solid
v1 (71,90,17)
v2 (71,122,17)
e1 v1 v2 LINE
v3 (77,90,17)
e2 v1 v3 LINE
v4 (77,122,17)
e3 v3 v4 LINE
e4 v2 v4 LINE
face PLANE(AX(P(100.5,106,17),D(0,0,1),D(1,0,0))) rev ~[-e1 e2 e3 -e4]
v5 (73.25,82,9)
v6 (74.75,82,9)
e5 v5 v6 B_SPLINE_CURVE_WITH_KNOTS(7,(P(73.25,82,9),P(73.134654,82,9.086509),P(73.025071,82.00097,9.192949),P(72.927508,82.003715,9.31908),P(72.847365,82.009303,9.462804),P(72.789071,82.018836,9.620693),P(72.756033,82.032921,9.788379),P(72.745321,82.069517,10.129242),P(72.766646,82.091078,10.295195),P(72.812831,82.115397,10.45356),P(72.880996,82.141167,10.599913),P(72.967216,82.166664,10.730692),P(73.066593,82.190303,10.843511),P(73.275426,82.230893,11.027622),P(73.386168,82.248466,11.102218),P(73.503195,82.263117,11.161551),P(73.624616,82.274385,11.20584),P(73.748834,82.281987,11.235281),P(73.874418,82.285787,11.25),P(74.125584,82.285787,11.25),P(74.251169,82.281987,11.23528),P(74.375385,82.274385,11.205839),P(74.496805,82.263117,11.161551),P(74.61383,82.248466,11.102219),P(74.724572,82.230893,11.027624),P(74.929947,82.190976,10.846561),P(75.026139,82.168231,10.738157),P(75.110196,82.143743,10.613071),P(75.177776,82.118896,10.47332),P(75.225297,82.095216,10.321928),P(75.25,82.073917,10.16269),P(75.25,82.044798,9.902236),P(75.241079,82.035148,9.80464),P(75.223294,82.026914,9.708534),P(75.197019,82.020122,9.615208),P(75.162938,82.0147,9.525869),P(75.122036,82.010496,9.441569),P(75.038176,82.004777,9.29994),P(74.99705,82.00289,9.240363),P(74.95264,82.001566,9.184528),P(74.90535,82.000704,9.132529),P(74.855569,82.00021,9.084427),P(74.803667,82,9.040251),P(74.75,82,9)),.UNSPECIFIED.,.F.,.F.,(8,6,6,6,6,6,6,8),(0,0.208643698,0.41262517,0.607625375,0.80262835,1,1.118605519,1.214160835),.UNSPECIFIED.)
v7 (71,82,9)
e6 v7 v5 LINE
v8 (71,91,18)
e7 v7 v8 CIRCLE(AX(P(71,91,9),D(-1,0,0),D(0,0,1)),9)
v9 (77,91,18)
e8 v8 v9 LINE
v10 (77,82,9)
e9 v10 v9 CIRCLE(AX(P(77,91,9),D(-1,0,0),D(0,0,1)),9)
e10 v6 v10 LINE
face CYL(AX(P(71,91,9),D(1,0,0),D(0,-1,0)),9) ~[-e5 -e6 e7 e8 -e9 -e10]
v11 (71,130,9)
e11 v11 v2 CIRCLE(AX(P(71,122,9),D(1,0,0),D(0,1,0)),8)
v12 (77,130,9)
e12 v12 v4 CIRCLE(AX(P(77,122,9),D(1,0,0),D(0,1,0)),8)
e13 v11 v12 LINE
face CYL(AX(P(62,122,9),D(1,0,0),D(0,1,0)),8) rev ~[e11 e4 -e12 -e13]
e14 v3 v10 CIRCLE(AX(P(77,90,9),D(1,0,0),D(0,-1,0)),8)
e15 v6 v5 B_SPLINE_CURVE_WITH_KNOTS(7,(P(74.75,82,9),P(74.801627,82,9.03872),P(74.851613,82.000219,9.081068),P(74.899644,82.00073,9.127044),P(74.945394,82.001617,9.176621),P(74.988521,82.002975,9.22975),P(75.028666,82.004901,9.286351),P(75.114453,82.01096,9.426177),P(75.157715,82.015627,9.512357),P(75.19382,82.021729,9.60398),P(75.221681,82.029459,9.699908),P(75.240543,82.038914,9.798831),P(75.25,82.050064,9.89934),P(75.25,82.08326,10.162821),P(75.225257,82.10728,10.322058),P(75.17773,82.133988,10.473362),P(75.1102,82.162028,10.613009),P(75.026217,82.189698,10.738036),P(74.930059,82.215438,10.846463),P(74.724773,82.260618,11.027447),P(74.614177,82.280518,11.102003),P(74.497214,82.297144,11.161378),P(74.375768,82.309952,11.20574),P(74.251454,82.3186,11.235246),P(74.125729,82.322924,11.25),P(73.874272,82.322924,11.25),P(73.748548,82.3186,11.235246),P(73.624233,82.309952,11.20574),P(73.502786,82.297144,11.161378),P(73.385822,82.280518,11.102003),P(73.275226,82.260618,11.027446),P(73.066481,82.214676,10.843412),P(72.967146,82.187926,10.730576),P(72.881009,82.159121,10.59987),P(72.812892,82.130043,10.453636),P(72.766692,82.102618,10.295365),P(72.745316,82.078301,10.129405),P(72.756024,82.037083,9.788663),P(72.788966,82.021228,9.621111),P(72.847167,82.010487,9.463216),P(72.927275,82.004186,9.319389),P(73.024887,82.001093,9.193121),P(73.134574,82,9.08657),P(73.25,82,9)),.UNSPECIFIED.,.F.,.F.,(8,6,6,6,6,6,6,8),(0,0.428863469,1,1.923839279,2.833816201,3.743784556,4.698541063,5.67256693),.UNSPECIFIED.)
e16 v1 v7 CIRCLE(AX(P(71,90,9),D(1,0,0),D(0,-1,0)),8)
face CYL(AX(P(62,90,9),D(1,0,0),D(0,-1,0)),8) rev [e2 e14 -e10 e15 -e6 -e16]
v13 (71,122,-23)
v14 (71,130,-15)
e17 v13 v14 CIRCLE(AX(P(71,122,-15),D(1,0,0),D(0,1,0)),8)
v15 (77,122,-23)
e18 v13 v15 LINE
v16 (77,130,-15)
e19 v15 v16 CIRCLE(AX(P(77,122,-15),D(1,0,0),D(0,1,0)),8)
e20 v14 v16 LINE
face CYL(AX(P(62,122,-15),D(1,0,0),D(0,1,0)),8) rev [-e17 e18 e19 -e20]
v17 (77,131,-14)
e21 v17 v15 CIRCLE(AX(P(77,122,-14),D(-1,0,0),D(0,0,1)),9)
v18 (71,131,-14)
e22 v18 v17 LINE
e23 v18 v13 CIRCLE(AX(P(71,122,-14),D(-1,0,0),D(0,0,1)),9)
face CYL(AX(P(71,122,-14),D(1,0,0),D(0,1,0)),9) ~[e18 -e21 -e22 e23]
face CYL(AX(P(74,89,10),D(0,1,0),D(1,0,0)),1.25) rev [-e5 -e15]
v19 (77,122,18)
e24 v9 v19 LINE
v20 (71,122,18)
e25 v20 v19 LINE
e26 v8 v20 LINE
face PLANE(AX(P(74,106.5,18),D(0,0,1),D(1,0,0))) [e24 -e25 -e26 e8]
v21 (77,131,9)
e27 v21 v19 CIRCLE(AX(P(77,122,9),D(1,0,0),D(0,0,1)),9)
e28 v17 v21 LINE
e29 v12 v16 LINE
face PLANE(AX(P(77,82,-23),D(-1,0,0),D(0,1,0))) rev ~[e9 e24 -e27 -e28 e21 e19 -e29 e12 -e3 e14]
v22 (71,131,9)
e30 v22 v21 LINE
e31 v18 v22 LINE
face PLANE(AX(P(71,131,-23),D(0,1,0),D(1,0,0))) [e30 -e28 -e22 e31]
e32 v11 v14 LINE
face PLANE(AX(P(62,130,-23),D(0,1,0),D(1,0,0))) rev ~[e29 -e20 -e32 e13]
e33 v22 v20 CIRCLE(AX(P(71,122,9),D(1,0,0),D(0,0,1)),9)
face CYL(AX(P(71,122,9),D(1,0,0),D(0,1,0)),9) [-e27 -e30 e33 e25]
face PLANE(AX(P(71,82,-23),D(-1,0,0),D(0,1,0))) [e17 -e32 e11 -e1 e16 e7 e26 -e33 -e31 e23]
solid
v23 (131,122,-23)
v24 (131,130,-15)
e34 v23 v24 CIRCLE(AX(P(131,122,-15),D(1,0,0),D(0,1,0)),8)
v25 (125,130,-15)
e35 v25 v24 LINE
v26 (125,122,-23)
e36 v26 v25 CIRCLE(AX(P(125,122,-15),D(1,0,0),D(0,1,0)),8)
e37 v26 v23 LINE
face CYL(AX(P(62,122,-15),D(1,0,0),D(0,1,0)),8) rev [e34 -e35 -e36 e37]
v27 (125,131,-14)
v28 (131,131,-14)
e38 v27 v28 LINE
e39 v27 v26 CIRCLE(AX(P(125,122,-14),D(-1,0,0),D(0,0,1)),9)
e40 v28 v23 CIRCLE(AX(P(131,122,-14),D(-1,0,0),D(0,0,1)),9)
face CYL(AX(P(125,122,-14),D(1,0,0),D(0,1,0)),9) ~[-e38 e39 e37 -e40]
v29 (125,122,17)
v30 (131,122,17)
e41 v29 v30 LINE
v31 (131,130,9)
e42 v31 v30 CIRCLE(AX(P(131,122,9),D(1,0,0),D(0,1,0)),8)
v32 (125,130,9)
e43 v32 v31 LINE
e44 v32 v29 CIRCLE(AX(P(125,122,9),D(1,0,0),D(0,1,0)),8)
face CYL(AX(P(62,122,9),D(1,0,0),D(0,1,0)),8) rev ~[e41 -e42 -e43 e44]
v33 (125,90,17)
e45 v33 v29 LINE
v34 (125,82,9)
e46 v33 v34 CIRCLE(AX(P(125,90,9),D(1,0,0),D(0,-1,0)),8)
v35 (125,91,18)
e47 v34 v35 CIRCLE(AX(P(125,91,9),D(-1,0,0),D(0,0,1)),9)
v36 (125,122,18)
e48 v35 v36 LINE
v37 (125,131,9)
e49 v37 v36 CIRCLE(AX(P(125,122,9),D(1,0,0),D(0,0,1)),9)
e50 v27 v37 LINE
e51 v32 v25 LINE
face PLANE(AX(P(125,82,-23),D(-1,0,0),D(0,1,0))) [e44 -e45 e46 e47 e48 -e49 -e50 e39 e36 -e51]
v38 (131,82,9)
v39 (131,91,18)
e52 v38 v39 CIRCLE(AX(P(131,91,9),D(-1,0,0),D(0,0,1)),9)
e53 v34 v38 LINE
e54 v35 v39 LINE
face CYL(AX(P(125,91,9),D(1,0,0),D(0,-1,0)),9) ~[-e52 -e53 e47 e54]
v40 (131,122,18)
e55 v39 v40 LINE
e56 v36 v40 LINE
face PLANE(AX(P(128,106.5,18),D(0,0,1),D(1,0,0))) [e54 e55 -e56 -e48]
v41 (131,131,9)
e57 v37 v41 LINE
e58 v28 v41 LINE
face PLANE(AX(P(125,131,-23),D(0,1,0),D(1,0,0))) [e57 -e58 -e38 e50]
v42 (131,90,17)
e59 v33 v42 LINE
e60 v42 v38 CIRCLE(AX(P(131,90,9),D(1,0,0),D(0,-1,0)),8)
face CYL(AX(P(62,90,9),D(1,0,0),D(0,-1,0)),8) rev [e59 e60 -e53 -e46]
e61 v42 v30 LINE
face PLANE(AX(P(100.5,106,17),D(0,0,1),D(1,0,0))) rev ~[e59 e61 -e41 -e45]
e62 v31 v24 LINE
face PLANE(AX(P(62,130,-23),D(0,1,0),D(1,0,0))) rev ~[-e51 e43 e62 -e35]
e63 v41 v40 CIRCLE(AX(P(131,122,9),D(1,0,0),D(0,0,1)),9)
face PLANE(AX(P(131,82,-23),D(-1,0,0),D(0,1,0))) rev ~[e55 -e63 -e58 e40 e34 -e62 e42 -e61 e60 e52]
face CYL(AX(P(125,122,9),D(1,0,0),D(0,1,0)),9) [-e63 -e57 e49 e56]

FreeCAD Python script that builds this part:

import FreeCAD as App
import Part
import Sketcher


def edges_at(feature, points):
    """Names of the edges that pass closest to the given points."""
    edges = feature.Shape.Edges
    near = lambda p: min(range(len(edges)), key=lambda i: edges[i].distToShape(Part.Vertex(*p))[0])
    return sorted({f"Edge{near(p) + 1}" for p in points})

doc = App.newDocument("Part")
body = doc.addObject("PartDesign::Body", "Body")

sketch1 = doc.addObject("Sketcher::SketchObject", "Sketch")
body.addObject(sketch1)
sketch1.AttachmentSupport = (doc.XY_Plane, [""])
sketch1.MapMode = "FlatFace"
sketch1.addGeometry(Part.Circle(App.Vector(0, 0, 0), App.Vector(0, 0, 1), 1.2), False)
sketch1.addConstraint(Sketcher.Constraint("Coincident", 0, 3, -1, 1))
sketch1.addConstraint(Sketcher.Constraint("Diameter", 0, 2.5))
pad1 = doc.addObject("PartDesign::Pad", "Pad")
body.addObject(pad1)
pad1.Profile = sketch1
pad1.Length = 15
body2 = doc.addObject("PartDesign::Body", "Body001")
doc.recompute()

body.Placement = App.Placement(App.Vector(0, 0, 0), App.Rotation(App.Vector(1, 0, 0), 90))
boolean = doc.addObject("PartDesign::Boolean", "Boolean")
body2.addObject(boolean)
boolean.Type = "Fuse"
boolean.addObjects([body])
body3 = doc.addObject("PartDesign::Body", "Body002")
doc.recompute()

body2.Placement = App.Placement(App.Vector(74, 97, 10), App.Rotation(App.Vector(0, 0, 1), 0))
boolean2 = doc.addObject("PartDesign::Boolean", "Boolean001")
body3.addObject(boolean2)
boolean2.Type = "Fuse"
boolean2.addObjects([body2])
body4 = doc.addObject("PartDesign::Body", "Body003")

sketch2 = doc.addObject("Sketcher::SketchObject", "Sketch001")
body4.addObject(sketch2)
sketch2.AttachmentSupport = (doc.getObject("XY_Plane003"), [""])
sketch2.MapMode = "FlatFace"
sketch2.addGeometry(Part.Circle(App.Vector(0, 0, 0), App.Vector(0, 0, 1), 1.2), False)
sketch2.addConstraint(Sketcher.Constraint("Coincident", 0, 3, -1, 1))
sketch2.addConstraint(Sketcher.Constraint("Diameter", 0, 2.5))
pad2 = doc.addObject("PartDesign::Pad", "Pad001")
body4.addObject(pad2)
pad2.Profile = sketch2
pad2.Length = 15
body5 = doc.addObject("PartDesign::Body", "Body004")
doc.recompute()

body4.Placement = App.Placement(App.Vector(0, 0, 0), App.Rotation(App.Vector(1, 0, 0), 90))
boolean3 = doc.addObject("PartDesign::Boolean", "Boolean002")
body5.addObject(boolean3)
boolean3.Type = "Fuse"
boolean3.addObjects([body4])
body6 = doc.addObject("PartDesign::Body", "Body005")
body6.AllowCompound = True
doc.recompute()

body5.Placement = App.Placement(App.Vector(106, 97, 10), App.Rotation(App.Vector(0, 0, 1), 0))
boolean4 = doc.addObject("PartDesign::Boolean", "Boolean003")
body6.addObject(boolean4)
boolean4.Type = "Fuse"
boolean4.addObjects([body5])
doc.recompute()

boolean5 = doc.addObject("PartDesign::Boolean", "Boolean004")
body6.addObject(boolean5)
boolean5.Type = "Fuse"
boolean5.addObjects([body3])
body7 = doc.addObject("PartDesign::Body", "Body006")
body7.AllowCompound = True
doc.recompute()

body6.Placement = App.Placement(App.Vector(0, -8, 0), App.Rotation(App.Vector(0, 0, 1), 0))
boolean6 = doc.addObject("PartDesign::Boolean", "Boolean005")
body7.addObject(boolean6)
boolean6.Type = "Fuse"
boolean6.addObjects([body6])
body8 = doc.addObject("PartDesign::Body", "Body007")

sketch3 = doc.addObject("Sketcher::SketchObject", "Sketch002")
body8.addObject(sketch3)
sketch3.AttachmentSupport = (doc.getObject("XY_Plane007"), [""])
sketch3.MapMode = "FlatFace"
sketch3.AttachmentOffset = App.Placement(App.Vector(0, 0, -27), App.Rotation())
sketch3.addGeometry(Part.LineSegment(App.Vector(62, 130, 0), App.Vector(62, 82, 0)), False)
sketch3.addGeometry(Part.LineSegment(App.Vector(62, 82, 0), App.Vector(139, 82, 0)), False)
sketch3.addGeometry(Part.LineSegment(App.Vector(139, 82, 0), App.Vector(139, 130, 0)), False)
sketch3.addGeometry(Part.LineSegment(App.Vector(139, 130, 0), App.Vector(62, 130, 0)), False)
sketch3.addConstraint(Sketcher.Constraint("Coincident", 0, 2, 1, 1))
sketch3.addConstraint(Sketcher.Constraint("Coincident", 1, 2, 2, 1))
sketch3.addConstraint(Sketcher.Constraint("Coincident", 2, 2, 3, 1))
sketch3.addConstraint(Sketcher.Constraint("Coincident", 3, 2, 0, 1))
sketch3.addConstraint(Sketcher.Constraint("Vertical", 0))
sketch3.addConstraint(Sketcher.Constraint("Horizontal", 1))
sketch3.addConstraint(Sketcher.Constraint("Vertical", 2))
sketch3.addConstraint(Sketcher.Constraint("Horizontal", 3))
sketch3.addConstraint(Sketcher.Constraint("DistanceX", 1, 1, 1, 2, 77.0))
sketch3.addConstraint(Sketcher.Constraint("DistanceY", 0, 2, 0, 1, 48.0))
sketch3.addConstraint(Sketcher.Constraint("DistanceX", -1, 1, 0, 2, 62.0))
sketch3.addConstraint(Sketcher.Constraint("DistanceY", -1, 1, 0, 2, 82.0))
pad3 = doc.addObject("PartDesign::Pad", "Pad002")
body8.addObject(pad3)
pad3.Profile = sketch3
pad3.Length = 40
doc.recompute()

fillet = doc.addObject("PartDesign::Fillet", "Fillet")
body8.addObject(fillet)
fillet.Base = (pad3, edges_at(pad3, [
    (100.5, 82, -27),
    (100.5, 82, 13),
    (100.5, 130, -27),
    (100.5, 130, 13),
]))
fillet.Radius = 8
body9 = doc.addObject("PartDesign::Body", "Body008")
doc.recompute()

body8.Placement = App.Placement(App.Vector(0, 0, 4), App.Rotation(App.Vector(0, 0, 1), 0))
boolean7 = doc.addObject("PartDesign::Boolean", "Boolean006")
body9.addObject(boolean7)
boolean7.Type = "Fuse"
boolean7.addObjects([body8])
body10 = doc.addObject("PartDesign::Body", "Body009")

sketch4 = doc.addObject("Sketcher::SketchObject", "Sketch003")
body10.addObject(sketch4)
sketch4.AttachmentSupport = (doc.getObject("XY_Plane009"), [""])
sketch4.MapMode = "FlatFace"
sketch4.AttachmentOffset = App.Placement(App.Vector(0, 0, -23), App.Rotation())
sketch4.addGeometry(Part.LineSegment(App.Vector(71, 131, 0), App.Vector(71, 82, 0)), False)
sketch4.addGeometry(Part.LineSegment(App.Vector(71, 82, 0), App.Vector(77, 82, 0)), False)
sketch4.addGeometry(Part.LineSegment(App.Vector(77, 82, 0), App.Vector(77, 131, 0)), False)
sketch4.addGeometry(Part.LineSegment(App.Vector(77, 131, 0), App.Vector(71, 131, 0)), False)
sketch4.addConstraint(Sketcher.Constraint("Coincident", 0, 2, 1, 1))
sketch4.addConstraint(Sketcher.Constraint("Coincident", 1, 2, 2, 1))
sketch4.addConstraint(Sketcher.Constraint("Coincident", 2, 2, 3, 1))
sketch4.addConstraint(Sketcher.Constraint("Coincident", 3, 2, 0, 1))
sketch4.addConstraint(Sketcher.Constraint("Vertical", 0))
sketch4.addConstraint(Sketcher.Constraint("Horizontal", 1))
sketch4.addConstraint(Sketcher.Constraint("Vertical", 2))
sketch4.addConstraint(Sketcher.Constraint("Horizontal", 3))
sketch4.addConstraint(Sketcher.Constraint("DistanceX", 1, 1, 1, 2, 6.0))
sketch4.addConstraint(Sketcher.Constraint("DistanceY", 0, 2, 0, 1, 49.0))
sketch4.addConstraint(Sketcher.Constraint("DistanceX", -1, 1, 0, 2, 71.0))
sketch4.addConstraint(Sketcher.Constraint("DistanceY", -1, 1, 0, 2, 82.0))
pad4 = doc.addObject("PartDesign::Pad", "Pad003")
body10.addObject(pad4)
pad4.Profile = sketch4
pad4.Length = 41
doc.recompute()

fillet2 = doc.addObject("PartDesign::Fillet", "Fillet001")
body10.addObject(fillet2)
fillet2.Base = (pad4, edges_at(pad4, [
    (74, 82, -23),
    (74, 82, 18),
    (74, 131, -23),
    (74, 131, 18),
]))
fillet2.Radius = 9
body11 = doc.addObject("PartDesign::Body", "Body010")
doc.recompute()

body10.Placement = App.Placement(App.Vector(54, 0, 0), App.Rotation(App.Vector(0, 0, 1), 0))
boolean8 = doc.addObject("PartDesign::Boolean", "Boolean007")
body11.addObject(boolean8)
boolean8.Type = "Fuse"
boolean8.addObjects([body10])
body12 = doc.addObject("PartDesign::Body", "Body011")
body12.AllowCompound = True

sketch5 = doc.addObject("Sketcher::SketchObject", "Sketch004")
body12.addObject(sketch5)
sketch5.AttachmentSupport = (doc.getObject("XY_Plane011"), [""])
sketch5.MapMode = "FlatFace"
sketch5.AttachmentOffset = App.Placement(App.Vector(0, 0, -23), App.Rotation())
sketch5.addGeometry(Part.LineSegment(App.Vector(71, 131, 0), App.Vector(71, 82, 0)), False)
sketch5.addGeometry(Part.LineSegment(App.Vector(71, 82, 0), App.Vector(77, 82, 0)), False)
sketch5.addGeometry(Part.LineSegment(App.Vector(77, 82, 0), App.Vector(77, 131, 0)), False)
sketch5.addGeometry(Part.LineSegment(App.Vector(77, 131, 0), App.Vector(71, 131, 0)), False)
sketch5.addConstraint(Sketcher.Constraint("Coincident", 0, 2, 1, 1))
sketch5.addConstraint(Sketcher.Constraint("Coincident", 1, 2, 2, 1))
sketch5.addConstraint(Sketcher.Constraint("Coincident", 2, 2, 3, 1))
sketch5.addConstraint(Sketcher.Constraint("Coincident", 3, 2, 0, 1))
sketch5.addConstraint(Sketcher.Constraint("Vertical", 0))
sketch5.addConstraint(Sketcher.Constraint("Horizontal", 1))
sketch5.addConstraint(Sketcher.Constraint("Vertical", 2))
sketch5.addConstraint(Sketcher.Constraint("Horizontal", 3))
sketch5.addConstraint(Sketcher.Constraint("DistanceX", 1, 1, 1, 2, 6.0))
sketch5.addConstraint(Sketcher.Constraint("DistanceY", 0, 2, 0, 1, 49.0))
sketch5.addConstraint(Sketcher.Constraint("DistanceX", -1, 1, 0, 2, 71.0))
sketch5.addConstraint(Sketcher.Constraint("DistanceY", -1, 1, 0, 2, 82.0))
pad5 = doc.addObject("PartDesign::Pad", "Pad004")
body12.addObject(pad5)
pad5.Profile = sketch5
pad5.Length = 41
doc.recompute()

fillet3 = doc.addObject("PartDesign::Fillet", "Fillet002")
body12.addObject(fillet3)
fillet3.Base = (pad5, edges_at(pad5, [
    (74, 82, -23),
    (74, 82, 18),
    (74, 131, -23),
    (74, 131, 18),
]))
fillet3.Radius = 9
doc.recompute()

boolean9 = doc.addObject("PartDesign::Boolean", "Boolean008")
body12.addObject(boolean9)
boolean9.Type = "Fuse"
boolean9.addObjects([body11])
doc.recompute()

boolean10 = doc.addObject("PartDesign::Boolean", "Boolean009")
body12.addObject(boolean10)
boolean10.Type = "Cut"
boolean10.addObjects([body9])
doc.recompute()

boolean11 = doc.addObject("PartDesign::Boolean", "Boolean010")
body12.addObject(boolean11)
boolean11.Type = "Cut"
boolean11.addObjects([body7])

doc.recompute()
